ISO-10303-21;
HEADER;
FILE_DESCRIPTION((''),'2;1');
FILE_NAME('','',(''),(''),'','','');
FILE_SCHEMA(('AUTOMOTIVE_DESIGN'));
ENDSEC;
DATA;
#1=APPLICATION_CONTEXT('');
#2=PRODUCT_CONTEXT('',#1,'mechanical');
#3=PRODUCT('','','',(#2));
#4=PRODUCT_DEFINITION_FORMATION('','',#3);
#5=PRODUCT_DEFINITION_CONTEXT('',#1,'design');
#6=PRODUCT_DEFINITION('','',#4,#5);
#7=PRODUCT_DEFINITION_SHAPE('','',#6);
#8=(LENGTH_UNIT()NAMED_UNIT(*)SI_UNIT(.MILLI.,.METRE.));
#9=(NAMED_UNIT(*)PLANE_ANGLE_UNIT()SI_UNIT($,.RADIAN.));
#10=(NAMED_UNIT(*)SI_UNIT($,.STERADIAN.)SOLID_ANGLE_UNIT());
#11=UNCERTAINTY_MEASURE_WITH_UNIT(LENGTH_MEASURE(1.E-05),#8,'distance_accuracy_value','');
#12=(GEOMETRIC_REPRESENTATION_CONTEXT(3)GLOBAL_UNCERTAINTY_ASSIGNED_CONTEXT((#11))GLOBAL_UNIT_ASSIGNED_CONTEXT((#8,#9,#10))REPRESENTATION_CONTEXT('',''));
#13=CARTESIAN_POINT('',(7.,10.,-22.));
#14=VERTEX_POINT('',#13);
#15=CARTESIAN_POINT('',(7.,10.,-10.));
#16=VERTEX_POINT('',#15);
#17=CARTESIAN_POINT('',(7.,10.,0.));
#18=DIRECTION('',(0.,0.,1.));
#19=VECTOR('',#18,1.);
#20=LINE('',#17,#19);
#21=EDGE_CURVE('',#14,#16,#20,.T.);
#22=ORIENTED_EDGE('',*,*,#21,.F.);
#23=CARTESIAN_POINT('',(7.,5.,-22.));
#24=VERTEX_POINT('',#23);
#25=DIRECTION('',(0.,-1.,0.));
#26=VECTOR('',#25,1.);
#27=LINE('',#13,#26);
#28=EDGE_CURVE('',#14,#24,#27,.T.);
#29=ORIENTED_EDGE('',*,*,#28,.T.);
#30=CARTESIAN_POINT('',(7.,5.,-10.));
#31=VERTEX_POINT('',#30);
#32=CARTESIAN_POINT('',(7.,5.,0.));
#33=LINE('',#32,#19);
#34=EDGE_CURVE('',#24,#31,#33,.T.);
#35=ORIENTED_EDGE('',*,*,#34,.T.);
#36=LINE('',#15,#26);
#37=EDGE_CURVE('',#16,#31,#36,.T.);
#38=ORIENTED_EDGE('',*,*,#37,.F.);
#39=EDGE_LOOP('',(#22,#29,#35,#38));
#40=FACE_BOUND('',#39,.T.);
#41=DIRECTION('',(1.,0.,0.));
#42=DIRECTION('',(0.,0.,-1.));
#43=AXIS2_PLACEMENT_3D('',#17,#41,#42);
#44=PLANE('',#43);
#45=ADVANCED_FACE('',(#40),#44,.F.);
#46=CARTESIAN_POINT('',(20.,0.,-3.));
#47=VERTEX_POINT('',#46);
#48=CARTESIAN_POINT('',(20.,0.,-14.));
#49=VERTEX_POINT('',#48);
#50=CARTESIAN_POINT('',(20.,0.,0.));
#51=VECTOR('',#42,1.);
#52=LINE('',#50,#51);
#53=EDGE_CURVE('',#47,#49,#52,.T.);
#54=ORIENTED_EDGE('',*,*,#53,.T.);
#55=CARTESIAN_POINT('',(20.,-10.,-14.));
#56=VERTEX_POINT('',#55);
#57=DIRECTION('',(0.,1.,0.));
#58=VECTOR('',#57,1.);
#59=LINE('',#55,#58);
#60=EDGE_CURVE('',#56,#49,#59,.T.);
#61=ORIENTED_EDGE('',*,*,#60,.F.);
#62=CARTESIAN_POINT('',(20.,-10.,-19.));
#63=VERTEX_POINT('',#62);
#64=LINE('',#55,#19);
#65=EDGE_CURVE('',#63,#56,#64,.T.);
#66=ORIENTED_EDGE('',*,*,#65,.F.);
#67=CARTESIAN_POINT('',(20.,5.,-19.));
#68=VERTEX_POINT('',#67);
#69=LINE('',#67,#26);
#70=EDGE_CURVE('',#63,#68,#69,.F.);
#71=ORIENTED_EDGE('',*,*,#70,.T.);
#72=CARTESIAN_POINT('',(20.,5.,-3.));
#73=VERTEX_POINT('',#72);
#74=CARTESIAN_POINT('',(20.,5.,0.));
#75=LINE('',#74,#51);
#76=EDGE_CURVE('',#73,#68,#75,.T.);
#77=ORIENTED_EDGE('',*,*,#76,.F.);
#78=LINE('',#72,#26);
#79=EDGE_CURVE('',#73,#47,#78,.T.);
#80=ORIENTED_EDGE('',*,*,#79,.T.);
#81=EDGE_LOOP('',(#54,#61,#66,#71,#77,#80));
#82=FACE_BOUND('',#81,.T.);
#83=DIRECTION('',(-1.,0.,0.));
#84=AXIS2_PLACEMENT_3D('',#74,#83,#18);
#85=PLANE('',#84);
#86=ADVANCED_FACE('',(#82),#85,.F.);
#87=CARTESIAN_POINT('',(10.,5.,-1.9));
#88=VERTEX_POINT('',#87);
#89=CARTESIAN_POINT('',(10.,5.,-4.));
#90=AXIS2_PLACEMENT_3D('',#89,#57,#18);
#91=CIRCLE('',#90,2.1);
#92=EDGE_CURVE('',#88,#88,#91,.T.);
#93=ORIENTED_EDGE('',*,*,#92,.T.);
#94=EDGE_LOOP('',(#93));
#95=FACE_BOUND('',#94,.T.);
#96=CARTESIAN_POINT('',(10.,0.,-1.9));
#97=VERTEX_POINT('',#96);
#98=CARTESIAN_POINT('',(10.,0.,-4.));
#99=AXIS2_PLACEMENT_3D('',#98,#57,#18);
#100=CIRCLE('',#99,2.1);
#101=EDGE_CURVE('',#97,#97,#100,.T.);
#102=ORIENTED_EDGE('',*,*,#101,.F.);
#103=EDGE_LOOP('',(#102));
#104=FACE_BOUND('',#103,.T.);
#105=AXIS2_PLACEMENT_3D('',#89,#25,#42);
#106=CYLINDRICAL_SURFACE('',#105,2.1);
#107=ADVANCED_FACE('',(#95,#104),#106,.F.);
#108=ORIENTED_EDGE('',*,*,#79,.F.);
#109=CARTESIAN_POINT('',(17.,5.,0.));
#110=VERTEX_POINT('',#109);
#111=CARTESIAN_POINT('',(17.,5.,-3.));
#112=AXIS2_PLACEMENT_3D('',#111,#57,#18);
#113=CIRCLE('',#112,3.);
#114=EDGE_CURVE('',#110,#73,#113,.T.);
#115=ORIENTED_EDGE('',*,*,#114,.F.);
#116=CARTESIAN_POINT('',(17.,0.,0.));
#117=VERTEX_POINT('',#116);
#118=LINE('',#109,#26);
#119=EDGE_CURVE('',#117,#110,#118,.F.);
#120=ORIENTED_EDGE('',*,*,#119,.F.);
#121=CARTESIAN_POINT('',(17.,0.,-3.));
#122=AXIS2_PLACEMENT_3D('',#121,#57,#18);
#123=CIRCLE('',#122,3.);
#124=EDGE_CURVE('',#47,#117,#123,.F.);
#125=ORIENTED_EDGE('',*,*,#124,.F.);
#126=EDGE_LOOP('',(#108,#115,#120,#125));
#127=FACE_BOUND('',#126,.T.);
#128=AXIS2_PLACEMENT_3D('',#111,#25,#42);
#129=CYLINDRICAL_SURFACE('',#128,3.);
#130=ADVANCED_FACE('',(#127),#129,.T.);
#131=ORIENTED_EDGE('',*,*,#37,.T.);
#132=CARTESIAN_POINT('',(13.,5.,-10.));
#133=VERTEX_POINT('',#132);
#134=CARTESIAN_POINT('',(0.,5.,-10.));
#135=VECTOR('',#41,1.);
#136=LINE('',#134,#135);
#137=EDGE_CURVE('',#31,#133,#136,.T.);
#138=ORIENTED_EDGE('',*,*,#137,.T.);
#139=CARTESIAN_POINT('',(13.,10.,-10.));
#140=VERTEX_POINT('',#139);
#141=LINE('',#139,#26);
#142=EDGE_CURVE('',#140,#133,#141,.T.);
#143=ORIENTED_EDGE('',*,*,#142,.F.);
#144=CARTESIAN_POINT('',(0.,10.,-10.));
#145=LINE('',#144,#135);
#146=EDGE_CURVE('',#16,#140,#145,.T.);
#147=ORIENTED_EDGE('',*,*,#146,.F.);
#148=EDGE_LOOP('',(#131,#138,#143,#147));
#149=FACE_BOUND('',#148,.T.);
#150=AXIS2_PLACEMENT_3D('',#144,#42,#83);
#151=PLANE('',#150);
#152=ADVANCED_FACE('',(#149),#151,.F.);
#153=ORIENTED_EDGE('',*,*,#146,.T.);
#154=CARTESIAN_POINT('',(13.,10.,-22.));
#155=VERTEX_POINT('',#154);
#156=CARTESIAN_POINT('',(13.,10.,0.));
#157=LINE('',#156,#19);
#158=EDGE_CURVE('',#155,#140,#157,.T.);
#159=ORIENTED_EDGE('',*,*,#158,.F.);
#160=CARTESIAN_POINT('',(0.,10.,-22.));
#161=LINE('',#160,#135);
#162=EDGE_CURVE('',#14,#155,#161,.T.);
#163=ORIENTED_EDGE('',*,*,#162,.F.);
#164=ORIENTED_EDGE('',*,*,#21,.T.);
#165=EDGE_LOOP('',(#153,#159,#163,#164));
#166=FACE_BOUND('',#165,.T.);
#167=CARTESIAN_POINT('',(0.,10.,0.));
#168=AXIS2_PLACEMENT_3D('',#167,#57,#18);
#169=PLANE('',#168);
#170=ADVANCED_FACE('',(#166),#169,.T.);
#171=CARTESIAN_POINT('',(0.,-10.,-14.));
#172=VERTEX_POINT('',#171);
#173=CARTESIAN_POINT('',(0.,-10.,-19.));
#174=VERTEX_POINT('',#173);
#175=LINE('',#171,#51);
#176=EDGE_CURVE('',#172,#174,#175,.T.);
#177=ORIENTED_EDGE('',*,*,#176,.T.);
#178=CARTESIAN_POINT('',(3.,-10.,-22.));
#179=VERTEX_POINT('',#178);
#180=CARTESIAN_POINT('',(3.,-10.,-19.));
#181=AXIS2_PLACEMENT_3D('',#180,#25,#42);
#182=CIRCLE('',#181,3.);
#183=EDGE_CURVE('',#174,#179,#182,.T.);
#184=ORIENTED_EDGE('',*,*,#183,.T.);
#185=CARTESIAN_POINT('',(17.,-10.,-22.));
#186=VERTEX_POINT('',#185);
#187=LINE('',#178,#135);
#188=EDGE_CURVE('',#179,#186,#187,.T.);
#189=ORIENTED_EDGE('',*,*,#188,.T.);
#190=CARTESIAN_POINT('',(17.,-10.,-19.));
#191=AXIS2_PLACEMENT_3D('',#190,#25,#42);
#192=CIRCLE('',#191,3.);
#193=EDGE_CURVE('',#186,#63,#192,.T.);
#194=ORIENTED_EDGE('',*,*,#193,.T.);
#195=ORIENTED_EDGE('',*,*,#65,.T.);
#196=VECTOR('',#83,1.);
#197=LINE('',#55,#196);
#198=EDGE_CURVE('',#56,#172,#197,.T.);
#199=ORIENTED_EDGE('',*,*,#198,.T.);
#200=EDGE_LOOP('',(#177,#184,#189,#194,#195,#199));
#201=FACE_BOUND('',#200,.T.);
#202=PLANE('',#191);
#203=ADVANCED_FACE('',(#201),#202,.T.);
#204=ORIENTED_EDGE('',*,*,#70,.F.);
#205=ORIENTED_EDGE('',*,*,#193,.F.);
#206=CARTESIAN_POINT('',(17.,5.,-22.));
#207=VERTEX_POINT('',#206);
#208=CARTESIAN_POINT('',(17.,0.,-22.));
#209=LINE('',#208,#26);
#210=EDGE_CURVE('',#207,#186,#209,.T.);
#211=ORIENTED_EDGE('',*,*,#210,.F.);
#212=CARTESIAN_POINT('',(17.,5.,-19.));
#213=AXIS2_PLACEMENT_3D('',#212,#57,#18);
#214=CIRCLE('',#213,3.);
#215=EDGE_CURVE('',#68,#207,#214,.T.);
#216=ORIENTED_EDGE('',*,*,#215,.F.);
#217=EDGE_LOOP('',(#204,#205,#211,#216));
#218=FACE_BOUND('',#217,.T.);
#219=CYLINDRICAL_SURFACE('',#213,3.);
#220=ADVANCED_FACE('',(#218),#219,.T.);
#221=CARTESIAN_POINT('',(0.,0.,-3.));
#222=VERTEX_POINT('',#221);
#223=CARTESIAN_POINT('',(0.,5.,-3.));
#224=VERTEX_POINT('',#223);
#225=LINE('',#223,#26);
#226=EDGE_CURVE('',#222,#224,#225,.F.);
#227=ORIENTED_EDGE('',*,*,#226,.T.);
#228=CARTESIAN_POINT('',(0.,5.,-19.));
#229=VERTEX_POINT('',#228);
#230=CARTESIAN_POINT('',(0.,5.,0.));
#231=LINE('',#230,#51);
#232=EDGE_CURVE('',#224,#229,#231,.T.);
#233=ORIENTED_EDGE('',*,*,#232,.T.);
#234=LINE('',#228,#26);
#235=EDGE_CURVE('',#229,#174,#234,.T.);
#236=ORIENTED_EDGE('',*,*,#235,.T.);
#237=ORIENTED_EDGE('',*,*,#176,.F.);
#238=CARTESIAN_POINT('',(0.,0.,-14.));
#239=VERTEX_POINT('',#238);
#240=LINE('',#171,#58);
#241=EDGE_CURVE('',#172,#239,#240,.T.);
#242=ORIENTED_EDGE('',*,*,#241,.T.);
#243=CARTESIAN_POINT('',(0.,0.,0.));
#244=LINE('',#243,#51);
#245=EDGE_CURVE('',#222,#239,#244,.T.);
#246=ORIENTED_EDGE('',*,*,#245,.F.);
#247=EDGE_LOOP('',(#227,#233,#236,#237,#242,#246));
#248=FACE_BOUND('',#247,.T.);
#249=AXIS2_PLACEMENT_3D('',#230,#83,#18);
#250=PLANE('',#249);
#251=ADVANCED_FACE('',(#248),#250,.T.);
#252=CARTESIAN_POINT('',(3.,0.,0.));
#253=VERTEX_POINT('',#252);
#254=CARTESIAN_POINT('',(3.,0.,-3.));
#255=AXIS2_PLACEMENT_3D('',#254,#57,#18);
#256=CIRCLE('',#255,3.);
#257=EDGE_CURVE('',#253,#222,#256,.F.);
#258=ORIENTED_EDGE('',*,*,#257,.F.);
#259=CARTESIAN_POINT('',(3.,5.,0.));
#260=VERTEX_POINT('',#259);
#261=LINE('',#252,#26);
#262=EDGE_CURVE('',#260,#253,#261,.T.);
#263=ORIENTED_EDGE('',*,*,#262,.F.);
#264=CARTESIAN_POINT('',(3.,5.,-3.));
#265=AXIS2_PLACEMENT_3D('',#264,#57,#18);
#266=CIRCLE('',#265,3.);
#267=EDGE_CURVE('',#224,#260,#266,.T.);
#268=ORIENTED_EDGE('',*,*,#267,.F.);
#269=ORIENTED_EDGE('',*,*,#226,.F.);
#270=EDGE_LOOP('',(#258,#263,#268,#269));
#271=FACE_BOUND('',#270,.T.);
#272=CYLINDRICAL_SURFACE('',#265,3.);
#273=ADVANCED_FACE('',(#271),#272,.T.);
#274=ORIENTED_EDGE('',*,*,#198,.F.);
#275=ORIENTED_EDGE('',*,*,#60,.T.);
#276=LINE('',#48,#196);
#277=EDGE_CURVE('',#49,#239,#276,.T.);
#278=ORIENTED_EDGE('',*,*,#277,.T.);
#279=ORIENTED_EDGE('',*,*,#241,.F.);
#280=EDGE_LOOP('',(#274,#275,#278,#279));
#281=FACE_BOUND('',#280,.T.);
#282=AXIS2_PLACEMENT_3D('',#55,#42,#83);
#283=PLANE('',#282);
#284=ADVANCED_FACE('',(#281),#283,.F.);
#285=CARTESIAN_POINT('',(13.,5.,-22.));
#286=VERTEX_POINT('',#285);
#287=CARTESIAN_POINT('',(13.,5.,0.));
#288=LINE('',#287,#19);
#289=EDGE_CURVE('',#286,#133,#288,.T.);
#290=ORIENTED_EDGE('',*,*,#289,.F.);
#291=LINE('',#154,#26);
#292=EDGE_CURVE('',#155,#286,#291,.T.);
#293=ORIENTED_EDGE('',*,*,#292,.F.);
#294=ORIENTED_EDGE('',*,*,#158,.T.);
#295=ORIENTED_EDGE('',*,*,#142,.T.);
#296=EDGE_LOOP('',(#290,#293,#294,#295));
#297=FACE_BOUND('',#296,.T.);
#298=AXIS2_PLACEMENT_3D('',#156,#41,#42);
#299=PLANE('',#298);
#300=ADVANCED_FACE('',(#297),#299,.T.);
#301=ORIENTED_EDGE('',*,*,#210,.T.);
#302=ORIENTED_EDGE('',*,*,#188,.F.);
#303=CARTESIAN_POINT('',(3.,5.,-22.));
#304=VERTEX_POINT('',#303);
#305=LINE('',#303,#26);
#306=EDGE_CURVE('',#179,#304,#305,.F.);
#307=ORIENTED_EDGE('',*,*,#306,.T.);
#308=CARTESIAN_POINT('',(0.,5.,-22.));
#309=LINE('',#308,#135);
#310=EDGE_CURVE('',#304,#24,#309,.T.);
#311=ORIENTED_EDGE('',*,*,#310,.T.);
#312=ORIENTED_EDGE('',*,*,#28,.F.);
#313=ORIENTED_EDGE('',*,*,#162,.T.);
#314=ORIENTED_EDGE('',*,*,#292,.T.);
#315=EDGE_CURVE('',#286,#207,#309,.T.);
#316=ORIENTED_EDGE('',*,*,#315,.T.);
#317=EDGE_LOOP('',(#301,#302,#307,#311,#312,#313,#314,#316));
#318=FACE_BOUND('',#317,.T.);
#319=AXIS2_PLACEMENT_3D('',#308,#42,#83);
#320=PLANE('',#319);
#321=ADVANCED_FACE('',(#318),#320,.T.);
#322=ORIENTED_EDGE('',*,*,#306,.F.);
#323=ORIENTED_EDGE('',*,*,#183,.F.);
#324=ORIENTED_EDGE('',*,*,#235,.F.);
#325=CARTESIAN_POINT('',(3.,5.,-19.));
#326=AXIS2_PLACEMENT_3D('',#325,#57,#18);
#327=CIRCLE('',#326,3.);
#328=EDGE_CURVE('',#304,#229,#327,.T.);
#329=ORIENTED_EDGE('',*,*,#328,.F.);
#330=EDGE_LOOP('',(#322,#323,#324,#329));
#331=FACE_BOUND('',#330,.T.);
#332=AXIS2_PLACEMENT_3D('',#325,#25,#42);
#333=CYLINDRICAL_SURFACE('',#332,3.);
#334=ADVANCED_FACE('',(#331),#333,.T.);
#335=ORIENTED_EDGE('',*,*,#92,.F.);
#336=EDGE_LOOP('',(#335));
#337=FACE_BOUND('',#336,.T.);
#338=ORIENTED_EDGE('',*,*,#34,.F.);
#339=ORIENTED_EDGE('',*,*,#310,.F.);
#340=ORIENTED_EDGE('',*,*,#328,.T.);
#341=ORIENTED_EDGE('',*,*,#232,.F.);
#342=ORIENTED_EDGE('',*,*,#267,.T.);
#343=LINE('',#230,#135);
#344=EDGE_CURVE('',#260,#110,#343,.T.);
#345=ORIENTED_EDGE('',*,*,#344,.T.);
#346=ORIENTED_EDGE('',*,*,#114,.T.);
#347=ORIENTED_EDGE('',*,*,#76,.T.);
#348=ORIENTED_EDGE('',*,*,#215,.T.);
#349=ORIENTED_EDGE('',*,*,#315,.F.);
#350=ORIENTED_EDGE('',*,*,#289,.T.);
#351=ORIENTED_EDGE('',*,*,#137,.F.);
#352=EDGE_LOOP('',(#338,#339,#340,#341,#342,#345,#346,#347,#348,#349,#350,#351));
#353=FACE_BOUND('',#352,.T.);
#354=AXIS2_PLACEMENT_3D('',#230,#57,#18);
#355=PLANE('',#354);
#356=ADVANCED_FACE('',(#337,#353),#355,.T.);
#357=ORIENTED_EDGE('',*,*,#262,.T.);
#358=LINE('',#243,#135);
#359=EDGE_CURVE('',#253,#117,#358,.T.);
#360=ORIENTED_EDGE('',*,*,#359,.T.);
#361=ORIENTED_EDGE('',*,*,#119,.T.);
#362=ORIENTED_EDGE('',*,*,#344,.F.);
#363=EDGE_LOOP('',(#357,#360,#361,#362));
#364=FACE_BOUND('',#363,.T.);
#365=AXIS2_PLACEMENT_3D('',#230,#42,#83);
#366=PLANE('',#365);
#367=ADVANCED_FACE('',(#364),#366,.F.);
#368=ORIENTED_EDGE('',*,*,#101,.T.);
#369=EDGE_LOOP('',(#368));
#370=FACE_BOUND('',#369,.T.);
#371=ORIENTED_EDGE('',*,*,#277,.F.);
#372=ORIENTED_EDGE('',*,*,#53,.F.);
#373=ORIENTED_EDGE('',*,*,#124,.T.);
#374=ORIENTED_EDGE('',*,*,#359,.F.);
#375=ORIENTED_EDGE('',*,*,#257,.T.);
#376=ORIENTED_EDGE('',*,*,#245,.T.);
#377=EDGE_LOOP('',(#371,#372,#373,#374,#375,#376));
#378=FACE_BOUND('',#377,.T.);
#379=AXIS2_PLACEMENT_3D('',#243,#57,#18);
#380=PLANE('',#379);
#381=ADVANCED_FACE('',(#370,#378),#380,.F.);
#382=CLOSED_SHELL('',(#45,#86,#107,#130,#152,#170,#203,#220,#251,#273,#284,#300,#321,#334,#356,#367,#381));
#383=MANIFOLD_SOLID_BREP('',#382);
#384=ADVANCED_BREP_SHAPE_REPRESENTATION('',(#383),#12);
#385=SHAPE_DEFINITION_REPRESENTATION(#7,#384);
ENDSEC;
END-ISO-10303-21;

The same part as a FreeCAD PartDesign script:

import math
import FreeCAD as App
import Part
import Sketcher
Q = App.Units.Quantity


def edges_at(feature, points):
    """Names of the edges that pass closest to the given points."""
    edges = feature.Shape.Edges
    near = lambda p: min(range(len(edges)), key=lambda i: edges[i].distToShape(Part.Vertex(*p))[0])
    return sorted({f"Edge{near(p) + 1}" for p in points})


def add_polygon(sketch, points):
    """Adds a closed chain of lines whose ends are joined by coincident constraints."""
    first, n = sketch.GeometryCount, len(points)
    for a, b in zip(points, points[1:] + points[:1]):
        sketch.addGeometry(Part.LineSegment(App.Vector(*a, 0), App.Vector(*b, 0)), False)
    for i in range(n):
        sketch.addConstraint(Sketcher.Constraint("Coincident", first + i, 2, first + (i + 1) % n, 1))

doc = App.newDocument("Part")
body = doc.addObject("PartDesign::Body", "Body")

# Sketch on XZ plane
sketch1 = body.newObject("Sketcher::SketchObject", "Sketch")
sketch1.AttachmentSupport = (doc.getObject("XZ_Plane"), [""])
sketch1.MapMode = "FlatFace"
add_polygon(sketch1, [(0, -22), (0, 0), (20, 0), (20, -22)])  # lines 0-3
sketch1.addGeometry(Part.Circle(App.Vector(10, -4, 0), App.Vector(0, 0, 1), 2.1), False)  # 4
sketch1.addConstraint([
    Sketcher.Constraint("Vertical", 0),
    Sketcher.Constraint("Horizontal", 1),
    Sketcher.Constraint("Vertical", 2),
    Sketcher.Constraint("Horizontal", 3),
    Sketcher.Constraint("Coincident", 0, 2, -1, 1),
    Sketcher.Constraint("Diameter", 4, Q("4.2 mm")),
    Sketcher.Constraint("DistanceX", 1, 1, 1, 2, Q("20 mm")),
    Sketcher.Constraint("DistanceY", 0, 1, 0, 2, Q("22 mm")),
    Sketcher.Constraint("DistanceX", -1, 1, 4, 3, Q("10 mm")),
    Sketcher.Constraint("DistanceY", 4, 3, -1, 1, Q("4 mm")),
])
pad1 = body.newObject("PartDesign::Pad", "Pad")
pad1.Profile = sketch1
pad1.Length = 5
pad1.Reversed = True

# Sketch on XZ plane
sketch2 = body.newObject("Sketcher::SketchObject", "Sketch001")
sketch2.AttachmentSupport = (doc.getObject("XZ_Plane"), [""])
sketch2.MapMode = "FlatFace"
sketch2.AttachmentOffset = App.Placement(App.Vector(0, 0, -5), App.Rotation())
add_polygon(sketch2, [(7, -22), (7, -10), (13, -10), (13, -22)])  # lines 0-3
sketch2.addConstraint([
    Sketcher.Constraint("Vertical", 0),
    Sketcher.Constraint("Horizontal", 1),
    Sketcher.Constraint("Vertical", 2),
    Sketcher.Constraint("Horizontal", 3),
    Sketcher.Constraint("DistanceX", 1, 1, 1, 2, Q("6 mm")),
    Sketcher.Constraint("DistanceY", 0, 1, 0, 2, Q("12 mm")),
    Sketcher.Constraint("DistanceX", -1, 1, 0, 2, Q("7 mm")),
    Sketcher.Constraint("DistanceY", 0, 2, -1, 1, Q("10 mm")),
])
pad2 = body.newObject("PartDesign::Pad", "Pad001")
pad2.Profile = sketch2
pad2.Length = 5
pad2.Reversed = True
doc.recompute()

fillet = body.newObject("PartDesign::Fillet", "Fillet")
fillet.Base = (pad2, edges_at(pad2, [
    (20, 2.5, 0),
    (0, 2.5, 0),
    (0, 2.5, -22),
    (20, 2.5, -22),
]))
fillet.Radius = 3

# Sketch on XZ plane
sketch3 = body.newObject("Sketcher::SketchObject", "Sketch002")
sketch3.AttachmentSupport = (doc.getObject("XZ_Plane"), [""])
sketch3.MapMode = "FlatFace"
sketch3.addGeometry([
    Part.LineSegment(App.Vector(3, -22, 0), App.Vector(17, -22, 0)),  # 0
    Part.ArcOfCircle(Part.Circle(App.Vector(17, -19, 0), App.Vector(0, 0, 1), 3), math.radians(-90), math.radians(0)),  # 1
    Part.LineSegment(App.Vector(20, -19, 0), App.Vector(20, -14, 0)),  # 2
    Part.LineSegment(App.Vector(20, -14, 0), App.Vector(0, -14, 0)),  # 3
    Part.LineSegment(App.Vector(0, -14, 0), App.Vector(0, -19, 0)),  # 4
    Part.ArcOfCircle(Part.Circle(App.Vector(3, -19, 0), App.Vector(0, 0, 1), 3), math.radians(180), math.radians(270)),  # 5
], False)
sketch3.addConstraint([
    Sketcher.Constraint("Tangent", 0, 2, 1, 1),
    Sketcher.Constraint("Tangent", 1, 2, 2, 1),
    Sketcher.Constraint("Coincident", 2, 2, 3, 1),
    Sketcher.Constraint("Coincident", 3, 2, 4, 1),
    Sketcher.Constraint("Tangent", 4, 2, 5, 1),
    Sketcher.Constraint("Tangent", 5, 2, 0, 1),
    Sketcher.Constraint("Horizontal", 0),
    Sketcher.Constraint("Vertical", 2),
    Sketcher.Constraint("Horizontal", 3),
    Sketcher.Constraint("Vertical", 4),
    Sketcher.Constraint("Equal", 1, 5),
    Sketcher.Constraint("PointOnObject", 3, 2, -2),
    Sketcher.Constraint("Radius", 1, Q("3 mm")),
    Sketcher.Constraint("DistanceX", 0, 1, 0, 2, Q("14 mm")),
    Sketcher.Constraint("DistanceY", 2, 1, 2, 2, Q("5 mm")),
    Sketcher.Constraint("DistanceY", 1, 3, -1, 1, Q("19 mm")),
])
pad3 = body.newObject("PartDesign::Pad", "Pad002")
pad3.Profile = sketch3
pad3.Length = 10

doc.recompute()
